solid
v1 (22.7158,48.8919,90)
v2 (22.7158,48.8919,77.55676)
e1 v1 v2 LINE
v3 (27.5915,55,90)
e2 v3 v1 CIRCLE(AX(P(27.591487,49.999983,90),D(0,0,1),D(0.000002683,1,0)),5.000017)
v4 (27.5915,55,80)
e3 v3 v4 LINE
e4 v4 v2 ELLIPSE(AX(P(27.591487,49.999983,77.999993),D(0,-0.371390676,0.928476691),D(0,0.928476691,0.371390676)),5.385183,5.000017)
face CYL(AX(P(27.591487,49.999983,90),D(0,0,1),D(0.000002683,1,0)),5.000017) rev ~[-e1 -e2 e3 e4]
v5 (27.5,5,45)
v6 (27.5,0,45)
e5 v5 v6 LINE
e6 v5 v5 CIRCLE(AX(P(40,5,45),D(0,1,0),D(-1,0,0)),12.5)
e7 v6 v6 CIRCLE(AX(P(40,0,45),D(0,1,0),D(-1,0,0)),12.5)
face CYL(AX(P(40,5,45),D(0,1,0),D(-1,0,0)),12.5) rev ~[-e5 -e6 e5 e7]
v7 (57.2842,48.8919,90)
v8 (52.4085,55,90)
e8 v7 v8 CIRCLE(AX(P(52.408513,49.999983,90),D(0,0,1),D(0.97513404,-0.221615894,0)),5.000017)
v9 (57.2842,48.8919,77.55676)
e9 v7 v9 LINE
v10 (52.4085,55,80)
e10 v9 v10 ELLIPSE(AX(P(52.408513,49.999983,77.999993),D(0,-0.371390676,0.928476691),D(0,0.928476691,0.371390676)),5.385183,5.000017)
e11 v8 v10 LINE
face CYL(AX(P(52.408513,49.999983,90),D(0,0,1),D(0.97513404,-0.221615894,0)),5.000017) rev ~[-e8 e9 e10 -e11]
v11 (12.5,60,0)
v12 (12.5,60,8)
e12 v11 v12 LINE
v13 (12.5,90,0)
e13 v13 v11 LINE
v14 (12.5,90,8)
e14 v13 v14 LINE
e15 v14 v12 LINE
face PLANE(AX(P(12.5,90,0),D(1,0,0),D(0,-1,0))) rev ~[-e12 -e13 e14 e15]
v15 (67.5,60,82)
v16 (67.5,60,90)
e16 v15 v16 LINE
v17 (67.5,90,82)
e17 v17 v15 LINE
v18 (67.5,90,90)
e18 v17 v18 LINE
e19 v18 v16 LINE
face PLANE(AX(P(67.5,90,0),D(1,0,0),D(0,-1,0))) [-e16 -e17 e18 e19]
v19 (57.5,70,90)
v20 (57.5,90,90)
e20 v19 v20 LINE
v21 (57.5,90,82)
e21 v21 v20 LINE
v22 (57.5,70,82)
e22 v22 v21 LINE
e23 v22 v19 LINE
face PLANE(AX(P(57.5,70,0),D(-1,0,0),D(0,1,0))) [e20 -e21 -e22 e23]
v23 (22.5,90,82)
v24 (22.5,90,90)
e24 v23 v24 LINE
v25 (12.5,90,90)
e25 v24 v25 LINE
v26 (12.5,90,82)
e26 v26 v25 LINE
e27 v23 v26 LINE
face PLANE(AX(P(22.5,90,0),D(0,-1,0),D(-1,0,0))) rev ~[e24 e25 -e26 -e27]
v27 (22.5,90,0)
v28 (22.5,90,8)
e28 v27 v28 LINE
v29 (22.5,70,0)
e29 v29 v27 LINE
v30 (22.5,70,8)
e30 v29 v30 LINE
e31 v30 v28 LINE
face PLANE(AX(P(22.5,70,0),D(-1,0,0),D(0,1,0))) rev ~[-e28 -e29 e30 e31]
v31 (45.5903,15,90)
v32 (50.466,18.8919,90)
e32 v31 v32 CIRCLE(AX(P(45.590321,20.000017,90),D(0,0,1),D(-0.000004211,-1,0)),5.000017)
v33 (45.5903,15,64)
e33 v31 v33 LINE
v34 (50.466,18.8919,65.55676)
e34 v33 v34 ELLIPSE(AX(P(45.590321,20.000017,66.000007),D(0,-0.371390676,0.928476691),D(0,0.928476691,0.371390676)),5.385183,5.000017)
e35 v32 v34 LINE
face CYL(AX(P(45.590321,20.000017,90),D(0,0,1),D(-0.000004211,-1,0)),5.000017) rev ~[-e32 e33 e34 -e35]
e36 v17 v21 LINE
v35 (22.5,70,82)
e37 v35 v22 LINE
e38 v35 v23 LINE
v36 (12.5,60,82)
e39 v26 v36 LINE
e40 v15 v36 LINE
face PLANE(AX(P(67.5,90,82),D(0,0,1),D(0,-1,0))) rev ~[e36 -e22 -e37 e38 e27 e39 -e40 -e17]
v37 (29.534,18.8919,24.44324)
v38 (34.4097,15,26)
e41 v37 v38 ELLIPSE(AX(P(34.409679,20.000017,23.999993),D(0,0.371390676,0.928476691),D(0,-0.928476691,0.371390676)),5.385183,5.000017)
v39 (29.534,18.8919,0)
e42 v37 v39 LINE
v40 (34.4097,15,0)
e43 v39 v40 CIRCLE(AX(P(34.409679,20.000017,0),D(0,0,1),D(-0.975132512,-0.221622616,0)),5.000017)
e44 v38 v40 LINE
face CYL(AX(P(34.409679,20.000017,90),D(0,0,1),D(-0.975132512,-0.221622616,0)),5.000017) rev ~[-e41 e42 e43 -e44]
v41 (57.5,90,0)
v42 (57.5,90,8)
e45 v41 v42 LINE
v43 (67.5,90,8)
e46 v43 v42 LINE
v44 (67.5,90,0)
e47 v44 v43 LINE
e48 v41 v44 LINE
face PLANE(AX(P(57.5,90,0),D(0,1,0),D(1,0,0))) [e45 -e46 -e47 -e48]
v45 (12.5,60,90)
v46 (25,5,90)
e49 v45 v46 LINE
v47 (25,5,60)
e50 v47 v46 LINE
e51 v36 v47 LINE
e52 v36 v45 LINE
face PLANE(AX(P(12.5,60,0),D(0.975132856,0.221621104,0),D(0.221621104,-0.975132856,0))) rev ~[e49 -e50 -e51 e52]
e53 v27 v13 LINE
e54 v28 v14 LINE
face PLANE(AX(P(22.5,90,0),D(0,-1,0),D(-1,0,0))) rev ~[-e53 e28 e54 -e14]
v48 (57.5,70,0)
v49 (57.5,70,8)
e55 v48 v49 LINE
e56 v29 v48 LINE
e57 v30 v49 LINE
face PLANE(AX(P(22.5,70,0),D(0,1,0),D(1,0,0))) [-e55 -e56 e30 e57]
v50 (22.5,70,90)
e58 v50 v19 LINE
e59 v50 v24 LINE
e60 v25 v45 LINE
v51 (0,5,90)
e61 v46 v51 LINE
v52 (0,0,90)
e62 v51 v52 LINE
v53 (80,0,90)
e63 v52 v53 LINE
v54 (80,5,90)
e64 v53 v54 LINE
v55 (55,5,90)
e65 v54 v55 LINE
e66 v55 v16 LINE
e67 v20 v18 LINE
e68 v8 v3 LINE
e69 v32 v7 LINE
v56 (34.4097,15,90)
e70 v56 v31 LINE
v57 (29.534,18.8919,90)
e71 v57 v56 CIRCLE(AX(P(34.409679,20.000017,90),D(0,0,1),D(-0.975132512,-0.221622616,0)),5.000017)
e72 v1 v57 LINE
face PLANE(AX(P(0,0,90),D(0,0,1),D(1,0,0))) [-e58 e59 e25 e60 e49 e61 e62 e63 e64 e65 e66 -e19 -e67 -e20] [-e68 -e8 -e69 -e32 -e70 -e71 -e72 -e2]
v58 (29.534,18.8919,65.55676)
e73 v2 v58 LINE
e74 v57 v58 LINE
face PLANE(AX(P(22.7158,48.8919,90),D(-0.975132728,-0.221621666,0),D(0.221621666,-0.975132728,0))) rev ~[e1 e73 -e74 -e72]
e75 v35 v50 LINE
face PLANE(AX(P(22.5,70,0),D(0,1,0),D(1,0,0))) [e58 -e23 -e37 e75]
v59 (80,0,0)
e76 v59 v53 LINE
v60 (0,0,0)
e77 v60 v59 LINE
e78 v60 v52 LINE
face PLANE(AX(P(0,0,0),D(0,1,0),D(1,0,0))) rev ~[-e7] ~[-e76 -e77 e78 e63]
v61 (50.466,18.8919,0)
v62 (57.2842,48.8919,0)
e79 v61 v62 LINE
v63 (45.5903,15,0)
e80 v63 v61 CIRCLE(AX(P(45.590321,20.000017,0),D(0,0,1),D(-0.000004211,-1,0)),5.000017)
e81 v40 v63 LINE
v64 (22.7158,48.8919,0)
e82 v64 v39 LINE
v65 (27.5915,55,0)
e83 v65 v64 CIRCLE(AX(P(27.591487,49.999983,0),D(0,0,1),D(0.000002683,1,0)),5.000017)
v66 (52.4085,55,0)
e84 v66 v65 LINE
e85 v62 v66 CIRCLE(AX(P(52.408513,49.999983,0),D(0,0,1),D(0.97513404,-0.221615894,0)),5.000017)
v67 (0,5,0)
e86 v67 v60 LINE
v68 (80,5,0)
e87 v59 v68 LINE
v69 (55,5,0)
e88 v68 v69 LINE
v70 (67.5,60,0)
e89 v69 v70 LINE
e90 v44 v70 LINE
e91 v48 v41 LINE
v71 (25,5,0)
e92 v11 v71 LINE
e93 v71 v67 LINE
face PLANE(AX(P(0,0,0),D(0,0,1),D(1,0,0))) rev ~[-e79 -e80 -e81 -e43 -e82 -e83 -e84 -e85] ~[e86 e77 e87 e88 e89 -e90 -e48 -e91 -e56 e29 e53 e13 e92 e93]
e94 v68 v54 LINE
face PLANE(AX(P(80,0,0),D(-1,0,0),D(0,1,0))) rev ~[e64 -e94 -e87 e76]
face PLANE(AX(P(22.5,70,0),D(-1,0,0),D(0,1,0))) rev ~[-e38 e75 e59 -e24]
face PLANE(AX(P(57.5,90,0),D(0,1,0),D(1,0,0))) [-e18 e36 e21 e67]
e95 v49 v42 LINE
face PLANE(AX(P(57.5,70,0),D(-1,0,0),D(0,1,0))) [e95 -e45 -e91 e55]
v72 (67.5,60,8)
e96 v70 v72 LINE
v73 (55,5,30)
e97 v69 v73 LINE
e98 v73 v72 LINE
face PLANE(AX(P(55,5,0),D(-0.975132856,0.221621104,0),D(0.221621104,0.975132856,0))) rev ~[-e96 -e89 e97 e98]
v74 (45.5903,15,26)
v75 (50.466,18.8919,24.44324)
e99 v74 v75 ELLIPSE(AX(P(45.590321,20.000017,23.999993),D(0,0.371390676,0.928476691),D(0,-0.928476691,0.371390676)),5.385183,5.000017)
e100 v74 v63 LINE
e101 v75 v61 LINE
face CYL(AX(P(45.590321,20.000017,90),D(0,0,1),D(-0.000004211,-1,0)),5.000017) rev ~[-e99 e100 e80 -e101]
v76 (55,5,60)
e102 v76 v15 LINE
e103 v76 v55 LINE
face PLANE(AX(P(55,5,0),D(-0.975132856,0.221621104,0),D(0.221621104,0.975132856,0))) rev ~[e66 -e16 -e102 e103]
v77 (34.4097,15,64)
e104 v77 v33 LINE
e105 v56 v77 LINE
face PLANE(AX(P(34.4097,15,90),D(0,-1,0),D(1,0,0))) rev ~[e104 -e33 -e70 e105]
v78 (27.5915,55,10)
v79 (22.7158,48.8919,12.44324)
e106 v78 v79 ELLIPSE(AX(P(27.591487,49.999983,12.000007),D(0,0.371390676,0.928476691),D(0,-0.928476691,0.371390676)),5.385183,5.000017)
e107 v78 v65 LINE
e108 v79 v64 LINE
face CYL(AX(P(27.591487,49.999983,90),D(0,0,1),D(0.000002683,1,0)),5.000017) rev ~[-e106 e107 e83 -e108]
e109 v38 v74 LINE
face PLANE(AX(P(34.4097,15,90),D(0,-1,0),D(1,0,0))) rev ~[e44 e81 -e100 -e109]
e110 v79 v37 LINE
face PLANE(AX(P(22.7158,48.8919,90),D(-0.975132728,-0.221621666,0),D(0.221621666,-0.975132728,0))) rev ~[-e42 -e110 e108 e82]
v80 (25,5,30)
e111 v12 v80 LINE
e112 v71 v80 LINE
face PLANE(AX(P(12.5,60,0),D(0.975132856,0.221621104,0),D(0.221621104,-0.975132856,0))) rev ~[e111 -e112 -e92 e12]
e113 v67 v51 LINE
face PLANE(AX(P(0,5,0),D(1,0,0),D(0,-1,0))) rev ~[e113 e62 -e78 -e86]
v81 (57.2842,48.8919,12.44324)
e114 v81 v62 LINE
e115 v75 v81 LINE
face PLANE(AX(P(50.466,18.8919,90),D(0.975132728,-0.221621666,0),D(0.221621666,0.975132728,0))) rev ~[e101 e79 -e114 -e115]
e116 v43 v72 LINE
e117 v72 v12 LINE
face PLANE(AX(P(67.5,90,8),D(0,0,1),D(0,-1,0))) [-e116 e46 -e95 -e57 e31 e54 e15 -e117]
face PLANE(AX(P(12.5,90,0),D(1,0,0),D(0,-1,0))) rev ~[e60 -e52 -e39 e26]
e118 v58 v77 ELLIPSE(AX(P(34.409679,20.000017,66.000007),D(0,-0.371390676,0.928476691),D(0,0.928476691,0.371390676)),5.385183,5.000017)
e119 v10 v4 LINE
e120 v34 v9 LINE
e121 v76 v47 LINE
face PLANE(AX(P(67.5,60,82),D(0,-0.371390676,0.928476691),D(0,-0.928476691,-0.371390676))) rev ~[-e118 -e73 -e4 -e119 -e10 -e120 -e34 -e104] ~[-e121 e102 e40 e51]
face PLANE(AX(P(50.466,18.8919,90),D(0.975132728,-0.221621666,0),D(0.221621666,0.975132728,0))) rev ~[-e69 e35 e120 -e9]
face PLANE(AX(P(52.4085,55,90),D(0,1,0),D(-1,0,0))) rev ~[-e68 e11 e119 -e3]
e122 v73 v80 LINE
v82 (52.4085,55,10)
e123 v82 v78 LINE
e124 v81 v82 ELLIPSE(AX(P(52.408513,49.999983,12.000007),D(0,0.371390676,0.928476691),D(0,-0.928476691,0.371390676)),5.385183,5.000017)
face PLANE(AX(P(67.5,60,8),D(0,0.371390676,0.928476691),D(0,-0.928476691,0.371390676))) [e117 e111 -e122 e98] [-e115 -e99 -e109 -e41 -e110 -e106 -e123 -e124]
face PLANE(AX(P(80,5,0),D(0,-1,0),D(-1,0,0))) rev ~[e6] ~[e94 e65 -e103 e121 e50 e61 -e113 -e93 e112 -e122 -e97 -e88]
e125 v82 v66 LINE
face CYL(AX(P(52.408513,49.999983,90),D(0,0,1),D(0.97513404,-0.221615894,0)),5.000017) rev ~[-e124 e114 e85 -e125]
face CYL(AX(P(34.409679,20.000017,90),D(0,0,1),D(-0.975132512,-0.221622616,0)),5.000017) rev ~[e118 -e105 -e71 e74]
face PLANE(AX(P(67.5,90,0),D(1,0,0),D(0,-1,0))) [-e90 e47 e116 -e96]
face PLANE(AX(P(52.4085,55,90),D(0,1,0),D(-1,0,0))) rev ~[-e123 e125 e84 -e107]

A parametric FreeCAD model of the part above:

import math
import FreeCAD as App
import Part
import Sketcher
from FreeCAD import Vector

doc = App.newDocument("Part")
params = doc.addObject("Spreadsheet::Sheet", "Params")
for row, (alias, value) in enumerate([
    ("sketch1_width", "35 mm"),
    ("sketch1_width2", "10 mm"),
    ("sketch1_width3", "80 mm"),
    ("sketch1_height", "20 mm"),
    ("sketch1_height2", "30 mm"),
    ("pad1_length", "90 mm"),
    ("sketch2_width", "30 mm"),
    ("pocket1_length", "60 mm"),
    ("sketch3_radius", "5 mm"),
    ("pocket2_length", "150 mm"),
    ("sketch4_diameter", "25 mm"),
    ("pocket3_length", "20 mm"),
], start=1):
    params.set(f"A{row}", alias)
    params.set(f"B{row}", "=" + value)
    params.setAlias(f"B{row}", alias)

body = doc.addObject("PartDesign::Body", "Body")

# Sketch on XY plane
sketch1 = body.newObject("Sketcher::SketchObject", "Sketch")
sketch1.AttachmentSupport = (doc.getObject("XY_Plane"), [""])
sketch1.MapMode = "FlatFace"
sketch1.addGeometry([
    Part.LineSegment(Vector(57.5, 70, 0), Vector(22.5, 70, 0)),  # 0
    Part.LineSegment(Vector(22.5, 70, 0), Vector(22.5, 90, 0)),  # 1
    Part.LineSegment(Vector(22.5, 90, 0), Vector(12.5, 90, 0)),  # 2
    Part.LineSegment(Vector(12.5, 90, 0), Vector(12.5, 60, 0)),  # 3
    Part.LineSegment(Vector(12.5, 60, 0), Vector(25, 5, 0)),  # 4
    Part.LineSegment(Vector(25, 5, 0), Vector(0, 5, 0)),  # 5
    Part.LineSegment(Vector(0, 5, 0), Vector(0, 0, 0)),  # 6
    Part.LineSegment(Vector(0, 0, 0), Vector(80, 0, 0)),  # 7
    Part.LineSegment(Vector(80, 0, 0), Vector(80, 5, 0)),  # 8
    Part.LineSegment(Vector(80, 5, 0), Vector(55, 5, 0)),  # 9
    Part.LineSegment(Vector(55, 5, 0), Vector(67.5, 60, 0)),  # 10
    Part.LineSegment(Vector(67.5, 60, 0), Vector(67.5, 90, 0)),  # 11
    Part.LineSegment(Vector(67.5, 90, 0), Vector(57.5, 90, 0)),  # 12
    Part.LineSegment(Vector(57.5, 90, 0), Vector(57.5, 70, 0)),  # 13
], False)
sketch1.addConstraint([
    Sketcher.Constraint("Coincident", 0, 2, 1, 1),
    Sketcher.Constraint("Coincident", 1, 2, 2, 1),
    Sketcher.Constraint("Coincident", 2, 2, 3, 1),
    Sketcher.Constraint("Coincident", 3, 2, 4, 1),
    Sketcher.Constraint("Coincident", 4, 2, 5, 1),
    Sketcher.Constraint("Coincident", 5, 2, 6, 1),
    Sketcher.Constraint("Coincident", 6, 2, 7, 1),
    Sketcher.Constraint("Coincident", 7, 2, 8, 1),
    Sketcher.Constraint("Coincident", 8, 2, 9, 1),
    Sketcher.Constraint("Coincident", 9, 2, 10, 1),
    Sketcher.Constraint("Coincident", 10, 2, 11, 1),
    Sketcher.Constraint("Coincident", 11, 2, 12, 1),
    Sketcher.Constraint("Coincident", 12, 2, 13, 1),
    Sketcher.Constraint("Coincident", 13, 2, 0, 1),
    Sketcher.Constraint("Horizontal", 0),
    Sketcher.Constraint("Vertical", 1),
    Sketcher.Constraint("Horizontal", 2),
    Sketcher.Constraint("Vertical", 3),
    Sketcher.Constraint("Horizontal", 5),
    Sketcher.Constraint("Vertical", 6),
    Sketcher.Constraint("Horizontal", 7),
    Sketcher.Constraint("Vertical", 8),
    Sketcher.Constraint("Horizontal", 9),
    Sketcher.Constraint("Vertical", 11),
    Sketcher.Constraint("Horizontal", 12),
    Sketcher.Constraint("Vertical", 13),
    Sketcher.Constraint("Coincident", 6, 2, -1, 1),
    Sketcher.Constraint("Horizontal", 5, 2, 8, 2),
    Sketcher.Constraint("Horizontal", 3, 2, 10, 2),
    Sketcher.Constraint("Horizontal", 2, 2, 11, 2),
    Sketcher.Constraint("Equal", 5, 9),
    Sketcher.Constraint("Equal", 2, 12),
    Sketcher.Constraint("Equal", 4, 10),
    Sketcher.Constraint("DistanceX", 0, 2, 0, 1, 35.0),
    Sketcher.Constraint("DistanceX", 2, 2, 2, 1, 10.0),
    Sketcher.Constraint("DistanceX", 7, 1, 7, 2, 80.0),
    Sketcher.Constraint("DistanceY", 1, 1, 1, 2, 20.0),
    Sketcher.Constraint("DistanceY", 3, 2, 3, 1, 30.0),
    Sketcher.Constraint("DistanceY", 6, 2, 6, 1, 5.0),
    Sketcher.Constraint("DistanceY", -1, 1, 0, 2, 70.0),
    Sketcher.Constraint("DistanceX", -1, 1, 9, 2, 55.0),
])
sketch1.setExpression("Constraints[33]", "Params.sketch1_width")
sketch1.setExpression("Constraints[34]", "Params.sketch1_width2")
sketch1.setExpression("Constraints[35]", "Params.sketch1_width3")
sketch1.setExpression("Constraints[36]", "Params.sketch1_height")
sketch1.setExpression("Constraints[37]", "Params.sketch1_height2")
pad1 = body.newObject("PartDesign::Pad", "Pad")
pad1.Profile = sketch1
pad1.setExpression("Length", "Params.pad1_length")

# Sketch on YZ plane
sketch2 = body.newObject("Sketcher::SketchObject", "Sketch001")
sketch2.AttachmentSupport = (doc.getObject("YZ_Plane"), [""])
sketch2.MapMode = "FlatFace"
sketch2.AttachmentOffset = App.Placement(Vector(0, 0, 67.5), App.Rotation())
sketch2.addGeometry([
    Part.LineSegment(Vector(5, 30, 0), Vector(60, 8, 0)),  # 0
    Part.LineSegment(Vector(60, 8, 0), Vector(90, 8, 0)),  # 1
    Part.LineSegment(Vector(90, 8, 0), Vector(90, 82, 0)),  # 2
    Part.LineSegment(Vector(90, 82, 0), Vector(60, 82, 0)),  # 3
    Part.LineSegment(Vector(60, 82, 0), Vector(5, 60, 0)),  # 4
    Part.LineSegment(Vector(5, 60, 0), Vector(5, 30, 0)),  # 5
], False)
sketch2.addConstraint([
    Sketcher.Constraint("Coincident", 0, 2, 1, 1),
    Sketcher.Constraint("Coincident", 1, 2, 2, 1),
    Sketcher.Constraint("Coincident", 2, 2, 3, 1),
    Sketcher.Constraint("Coincident", 3, 2, 4, 1),
    Sketcher.Constraint("Coincident", 4, 2, 5, 1),
    Sketcher.Constraint("Coincident", 5, 2, 0, 1),
    Sketcher.Constraint("Horizontal", 1),
    Sketcher.Constraint("Vertical", 2),
    Sketcher.Constraint("Horizontal", 3),
    Sketcher.Constraint("Vertical", 5),
    Sketcher.Constraint("Vertical", 0, 2, 3, 2),
    Sketcher.Constraint("Equal", 3, 5),
    Sketcher.Constraint("Equal", 0, 4),
    Sketcher.Constraint("DistanceX", 1, 1, 1, 2, 30.0),
    Sketcher.Constraint("DistanceY", -1, 1, 0, 2, 8.0),
    Sketcher.Constraint("DistanceY", -1, 1, 5, 2, 30.0),
    Sketcher.Constraint("DistanceX", -1, 1, 0, 2, 60.0),
    Sketcher.Constraint("DistanceX", -1, 1, 4, 2, 5.0),
])
sketch2.setExpression("Constraints[13]", "Params.sketch2_width")
pocket1 = body.newObject("PartDesign::Pocket", "Pocket")
pocket1.Profile = sketch2
pocket1.setExpression("Length", "Params.pocket1_length")

# Sketch on XY plane
sketch3 = body.newObject("Sketcher::SketchObject", "Sketch002")
sketch3.AttachmentSupport = (doc.getObject("XY_Plane"), [""])
sketch3.MapMode = "FlatFace"
sketch3.AttachmentOffset = App.Placement(Vector(0, 0, 90), App.Rotation())
sketch3.addGeometry([
    Part.ArcOfCircle(Part.Circle(Vector(27.5915, 50, 0), Vector(0, 0, 1), 5), math.radians(90), math.radians(192.804114)),  # 0
    Part.LineSegment(Vector(22.7158, 48.8919, 0), Vector(29.534, 18.8919, 0)),  # 1
    Part.ArcOfCircle(Part.Circle(Vector(34.4097, 20, 0), Vector(0, 0, 1), 5.000034), math.radians(-167.195886), math.radians(-90)),  # 2
    Part.LineSegment(Vector(34.4097, 15, 0), Vector(45.5903, 15, 0)),  # 3
    Part.ArcOfCircle(Part.Circle(Vector(45.5903, 20, 0), Vector(0, 0, 1), 5), math.radians(-90), math.radians(-12.804114)),  # 4
    Part.LineSegment(Vector(50.466, 18.8919, 0), Vector(57.2842, 48.8919, 0)),  # 5
    Part.ArcOfCircle(Part.Circle(Vector(52.4085, 50, 0), Vector(0, 0, 1), 5.000034), math.radians(-12.804114), math.radians(90)),  # 6
    Part.LineSegment(Vector(52.4085, 55, 0), Vector(27.5915, 55, 0)),  # 7
], False)
sketch3.addConstraint([
    Sketcher.Constraint("Tangent", 0, 2, 1, 1),
    Sketcher.Constraint("Tangent", 1, 2, 2, 1),
    Sketcher.Constraint("Tangent", 2, 2, 3, 1),
    Sketcher.Constraint("Tangent", 3, 2, 4, 1),
    Sketcher.Constraint("Tangent", 4, 2, 5, 1),
    Sketcher.Constraint("Tangent", 5, 2, 6, 1),
    Sketcher.Constraint("Tangent", 6, 2, 7, 1),
    Sketcher.Constraint("Tangent", 7, 2, 0, 1),
    Sketcher.Constraint("Horizontal", 3),
    Sketcher.Constraint("Horizontal", 7),
    Sketcher.Constraint("Equal", 0, 2),
    Sketcher.Constraint("Equal", 2, 4),
    Sketcher.Constraint("Equal", 4, 6),
    Sketcher.Constraint("Horizontal", 1, 2, 4, 2),
    Sketcher.Constraint("Radius", 0, 5.0),
    Sketcher.Constraint("DistanceY", -1, 1, 2, 2, 15.0),
    Sketcher.Constraint("DistanceY", -1, 1, 0, 3, 50.0),
    Sketcher.Constraint("DistanceX", 7, 2, 7, 1, 24.817),
    Sketcher.Constraint("Distance", 1, 30.765),
    Sketcher.Constraint("DistanceX", -1, 1, 1, 2, 29.534),
])
sketch3.setExpression("Constraints[14]", "Params.sketch3_radius")
pocket2 = body.newObject("PartDesign::Pocket", "Pocket001")
pocket2.Profile = sketch3
pocket2.setExpression("Length", "Params.pocket2_length")

# Sketch on XZ plane
sketch4 = body.newObject("Sketcher::SketchObject", "Sketch003")
sketch4.AttachmentSupport = (doc.getObject("XZ_Plane"), [""])
sketch4.MapMode = "FlatFace"
sketch4.AttachmentOffset = App.Placement(Vector(0, 0, -5), App.Rotation())
sketch4.addGeometry(Part.Circle(Vector(40, 45, 0), Vector(0, 0, 1), 12.5), False)
sketch4.addConstraint([
    Sketcher.Constraint("Diameter", 0, 25.0),
    Sketcher.Constraint("DistanceX", -1, 1, 0, 3, 40.0),
    Sketcher.Constraint("DistanceY", -1, 1, 0, 3, 45.0),
])
sketch4.setExpression("Constraints[0]", "Params.sketch4_diameter")
pocket3 = body.newObject("PartDesign::Pocket", "Pocket002")
pocket3.Profile = sketch4
pocket3.setExpression("Length", "Params.pocket3_length")
pocket3.Reversed = True

doc.recompute()
